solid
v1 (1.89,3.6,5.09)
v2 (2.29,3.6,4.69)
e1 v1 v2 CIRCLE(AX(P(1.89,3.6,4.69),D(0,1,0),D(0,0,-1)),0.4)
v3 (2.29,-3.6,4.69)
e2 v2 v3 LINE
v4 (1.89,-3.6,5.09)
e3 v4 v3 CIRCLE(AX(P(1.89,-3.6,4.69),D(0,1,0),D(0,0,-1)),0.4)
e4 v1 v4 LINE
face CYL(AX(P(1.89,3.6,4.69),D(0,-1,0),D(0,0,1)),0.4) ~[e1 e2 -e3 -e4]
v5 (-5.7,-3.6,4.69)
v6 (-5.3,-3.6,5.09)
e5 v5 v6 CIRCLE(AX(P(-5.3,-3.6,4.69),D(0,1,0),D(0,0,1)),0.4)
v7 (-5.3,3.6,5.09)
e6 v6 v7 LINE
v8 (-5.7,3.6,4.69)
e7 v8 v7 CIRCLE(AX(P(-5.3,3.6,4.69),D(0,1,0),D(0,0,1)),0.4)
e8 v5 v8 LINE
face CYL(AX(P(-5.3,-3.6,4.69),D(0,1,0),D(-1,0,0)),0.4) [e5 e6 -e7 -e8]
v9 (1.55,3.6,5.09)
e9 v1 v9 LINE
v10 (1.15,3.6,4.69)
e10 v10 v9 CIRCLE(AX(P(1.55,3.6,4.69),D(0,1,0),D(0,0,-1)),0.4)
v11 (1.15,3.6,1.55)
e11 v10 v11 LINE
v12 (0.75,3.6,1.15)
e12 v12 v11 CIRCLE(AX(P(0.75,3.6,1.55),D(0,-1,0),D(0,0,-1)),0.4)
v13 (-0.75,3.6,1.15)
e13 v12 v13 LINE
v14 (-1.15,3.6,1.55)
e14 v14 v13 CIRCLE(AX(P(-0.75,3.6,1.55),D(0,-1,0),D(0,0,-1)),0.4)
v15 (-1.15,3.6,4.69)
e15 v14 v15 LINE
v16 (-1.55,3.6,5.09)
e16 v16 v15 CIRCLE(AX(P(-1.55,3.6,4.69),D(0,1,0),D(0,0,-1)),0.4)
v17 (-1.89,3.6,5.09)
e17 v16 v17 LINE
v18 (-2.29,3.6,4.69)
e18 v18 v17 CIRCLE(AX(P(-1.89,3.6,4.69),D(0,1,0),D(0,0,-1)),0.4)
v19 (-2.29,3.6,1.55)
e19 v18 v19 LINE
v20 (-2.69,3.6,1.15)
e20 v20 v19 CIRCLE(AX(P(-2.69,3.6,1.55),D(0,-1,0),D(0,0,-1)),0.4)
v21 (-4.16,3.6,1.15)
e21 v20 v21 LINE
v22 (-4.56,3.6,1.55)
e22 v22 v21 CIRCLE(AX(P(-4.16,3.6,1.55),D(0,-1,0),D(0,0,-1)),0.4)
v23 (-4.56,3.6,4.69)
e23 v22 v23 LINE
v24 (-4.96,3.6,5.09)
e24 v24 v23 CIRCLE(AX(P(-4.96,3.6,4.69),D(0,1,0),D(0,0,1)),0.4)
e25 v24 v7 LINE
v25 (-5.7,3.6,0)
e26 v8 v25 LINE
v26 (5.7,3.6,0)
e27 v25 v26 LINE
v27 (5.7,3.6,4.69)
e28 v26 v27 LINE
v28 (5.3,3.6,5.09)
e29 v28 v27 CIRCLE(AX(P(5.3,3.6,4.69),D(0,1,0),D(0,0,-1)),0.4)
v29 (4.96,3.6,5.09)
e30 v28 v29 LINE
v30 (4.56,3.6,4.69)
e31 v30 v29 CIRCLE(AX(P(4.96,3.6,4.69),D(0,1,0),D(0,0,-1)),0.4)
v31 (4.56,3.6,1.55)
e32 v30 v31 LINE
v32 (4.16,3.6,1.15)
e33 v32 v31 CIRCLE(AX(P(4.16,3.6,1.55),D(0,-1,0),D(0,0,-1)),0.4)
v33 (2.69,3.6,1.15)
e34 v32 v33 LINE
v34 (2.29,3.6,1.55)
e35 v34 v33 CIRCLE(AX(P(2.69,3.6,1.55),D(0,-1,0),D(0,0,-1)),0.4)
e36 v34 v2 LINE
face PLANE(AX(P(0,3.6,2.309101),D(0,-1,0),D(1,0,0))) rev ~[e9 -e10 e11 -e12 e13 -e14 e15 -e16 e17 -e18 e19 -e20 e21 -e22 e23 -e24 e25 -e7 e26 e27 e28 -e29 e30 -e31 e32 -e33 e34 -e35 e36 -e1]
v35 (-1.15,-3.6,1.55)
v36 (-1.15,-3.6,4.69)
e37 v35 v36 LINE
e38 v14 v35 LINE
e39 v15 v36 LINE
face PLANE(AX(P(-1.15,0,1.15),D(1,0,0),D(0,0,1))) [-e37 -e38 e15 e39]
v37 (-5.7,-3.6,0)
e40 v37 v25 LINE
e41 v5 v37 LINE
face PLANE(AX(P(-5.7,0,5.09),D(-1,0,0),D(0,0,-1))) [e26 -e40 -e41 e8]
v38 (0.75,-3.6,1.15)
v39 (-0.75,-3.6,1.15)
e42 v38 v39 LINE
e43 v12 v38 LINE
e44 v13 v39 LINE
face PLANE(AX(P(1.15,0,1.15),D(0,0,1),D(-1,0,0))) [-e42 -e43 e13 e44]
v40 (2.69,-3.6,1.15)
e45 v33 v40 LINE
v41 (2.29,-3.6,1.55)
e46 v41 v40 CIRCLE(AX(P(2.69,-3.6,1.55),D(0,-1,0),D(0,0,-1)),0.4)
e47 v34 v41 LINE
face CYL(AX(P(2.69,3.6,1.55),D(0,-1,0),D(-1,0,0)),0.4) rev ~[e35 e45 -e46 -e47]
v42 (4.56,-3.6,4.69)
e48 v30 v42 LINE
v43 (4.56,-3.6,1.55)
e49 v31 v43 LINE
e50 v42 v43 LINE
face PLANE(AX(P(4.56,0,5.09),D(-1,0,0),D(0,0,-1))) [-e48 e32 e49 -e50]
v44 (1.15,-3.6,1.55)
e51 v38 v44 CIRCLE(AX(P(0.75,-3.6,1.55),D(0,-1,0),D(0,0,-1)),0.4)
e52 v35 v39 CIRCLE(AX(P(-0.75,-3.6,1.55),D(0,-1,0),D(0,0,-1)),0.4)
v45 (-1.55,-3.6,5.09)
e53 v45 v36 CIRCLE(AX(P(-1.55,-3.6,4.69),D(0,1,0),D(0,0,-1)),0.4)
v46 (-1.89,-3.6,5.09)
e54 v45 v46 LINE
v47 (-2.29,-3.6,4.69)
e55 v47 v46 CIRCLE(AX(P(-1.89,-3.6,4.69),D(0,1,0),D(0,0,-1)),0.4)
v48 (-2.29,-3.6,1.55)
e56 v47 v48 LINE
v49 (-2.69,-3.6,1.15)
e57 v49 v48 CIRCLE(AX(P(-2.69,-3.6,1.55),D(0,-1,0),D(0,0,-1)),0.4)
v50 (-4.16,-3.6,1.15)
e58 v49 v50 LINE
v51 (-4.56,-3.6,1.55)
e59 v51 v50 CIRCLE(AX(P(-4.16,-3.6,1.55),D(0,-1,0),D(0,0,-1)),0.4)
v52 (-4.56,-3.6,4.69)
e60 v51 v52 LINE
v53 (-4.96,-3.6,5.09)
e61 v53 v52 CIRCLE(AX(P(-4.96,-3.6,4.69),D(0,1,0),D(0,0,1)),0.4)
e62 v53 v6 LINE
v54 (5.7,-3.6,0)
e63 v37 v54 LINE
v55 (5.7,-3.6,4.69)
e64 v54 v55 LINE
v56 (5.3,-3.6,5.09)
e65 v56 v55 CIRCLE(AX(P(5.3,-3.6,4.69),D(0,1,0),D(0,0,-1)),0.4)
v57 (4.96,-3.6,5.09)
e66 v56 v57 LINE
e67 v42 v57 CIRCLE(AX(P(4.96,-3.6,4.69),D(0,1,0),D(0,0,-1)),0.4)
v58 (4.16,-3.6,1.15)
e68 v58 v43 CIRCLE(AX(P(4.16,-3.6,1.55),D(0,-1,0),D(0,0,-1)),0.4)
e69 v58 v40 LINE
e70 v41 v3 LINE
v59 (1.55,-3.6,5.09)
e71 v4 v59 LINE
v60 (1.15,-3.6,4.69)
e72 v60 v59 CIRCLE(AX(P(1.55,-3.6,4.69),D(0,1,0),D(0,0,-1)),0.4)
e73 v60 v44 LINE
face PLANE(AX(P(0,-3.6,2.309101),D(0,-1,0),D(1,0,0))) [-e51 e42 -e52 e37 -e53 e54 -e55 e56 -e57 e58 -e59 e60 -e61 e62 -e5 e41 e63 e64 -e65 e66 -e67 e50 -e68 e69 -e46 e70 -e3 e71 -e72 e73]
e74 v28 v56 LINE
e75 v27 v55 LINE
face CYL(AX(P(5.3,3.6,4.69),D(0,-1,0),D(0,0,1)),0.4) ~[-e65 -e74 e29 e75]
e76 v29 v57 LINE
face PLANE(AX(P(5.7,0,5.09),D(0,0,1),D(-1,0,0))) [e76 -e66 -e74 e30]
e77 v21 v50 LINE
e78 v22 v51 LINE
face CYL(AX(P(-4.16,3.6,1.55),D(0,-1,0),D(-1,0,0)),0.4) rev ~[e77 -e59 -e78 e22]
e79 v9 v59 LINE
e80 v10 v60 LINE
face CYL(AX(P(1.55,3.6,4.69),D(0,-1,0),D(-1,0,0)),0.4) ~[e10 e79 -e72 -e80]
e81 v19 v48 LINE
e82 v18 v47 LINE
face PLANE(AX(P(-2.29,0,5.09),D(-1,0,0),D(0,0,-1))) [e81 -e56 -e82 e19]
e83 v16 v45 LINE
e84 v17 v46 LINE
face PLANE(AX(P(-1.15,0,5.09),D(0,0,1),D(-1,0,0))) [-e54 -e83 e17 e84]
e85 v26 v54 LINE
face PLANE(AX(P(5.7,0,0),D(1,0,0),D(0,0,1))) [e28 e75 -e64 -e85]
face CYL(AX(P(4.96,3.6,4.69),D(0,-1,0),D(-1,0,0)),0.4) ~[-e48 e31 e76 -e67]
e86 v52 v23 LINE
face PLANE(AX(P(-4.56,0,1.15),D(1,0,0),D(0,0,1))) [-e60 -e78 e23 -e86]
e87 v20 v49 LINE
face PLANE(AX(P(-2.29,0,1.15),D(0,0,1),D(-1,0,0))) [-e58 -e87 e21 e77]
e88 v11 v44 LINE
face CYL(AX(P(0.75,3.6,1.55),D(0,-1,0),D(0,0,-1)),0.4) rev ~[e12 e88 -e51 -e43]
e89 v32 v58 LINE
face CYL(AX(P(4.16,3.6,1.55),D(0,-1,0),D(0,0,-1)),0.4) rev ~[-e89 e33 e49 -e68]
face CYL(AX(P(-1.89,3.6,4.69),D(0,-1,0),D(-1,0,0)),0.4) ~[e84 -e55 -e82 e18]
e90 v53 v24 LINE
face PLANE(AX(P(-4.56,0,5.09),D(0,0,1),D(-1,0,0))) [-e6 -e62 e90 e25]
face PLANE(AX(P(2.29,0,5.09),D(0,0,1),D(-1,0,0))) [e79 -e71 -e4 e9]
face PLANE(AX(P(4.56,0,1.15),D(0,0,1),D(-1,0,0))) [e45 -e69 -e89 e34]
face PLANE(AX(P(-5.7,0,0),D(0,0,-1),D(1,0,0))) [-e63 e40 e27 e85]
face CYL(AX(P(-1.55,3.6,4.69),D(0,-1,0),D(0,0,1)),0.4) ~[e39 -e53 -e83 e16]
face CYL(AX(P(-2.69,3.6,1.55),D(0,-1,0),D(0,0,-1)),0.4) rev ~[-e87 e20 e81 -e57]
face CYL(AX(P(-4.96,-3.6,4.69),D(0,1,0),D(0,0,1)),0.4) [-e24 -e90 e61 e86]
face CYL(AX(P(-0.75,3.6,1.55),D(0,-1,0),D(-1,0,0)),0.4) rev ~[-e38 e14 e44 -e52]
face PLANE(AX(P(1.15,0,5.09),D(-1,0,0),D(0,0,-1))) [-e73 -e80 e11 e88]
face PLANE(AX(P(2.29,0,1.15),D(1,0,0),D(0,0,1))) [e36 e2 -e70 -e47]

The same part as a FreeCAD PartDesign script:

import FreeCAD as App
import Part
import Sketcher

V = App.Vector


def edges_at(feature, points):
    """Names of the edges that pass closest to the given points."""
    edges = feature.Shape.Edges
    near = lambda p: min(range(len(edges)), key=lambda i: edges[i].distToShape(Part.Vertex(*p))[0])
    return sorted({f"Edge{near(p) + 1}" for p in points})

doc = App.newDocument("Part")
params = doc.addObject("Spreadsheet::Sheet", "Params")
for row, (alias, value) in enumerate([
    ("sketch1_width", "11.4 mm"),
    ("sketch1_width2", "2.3 mm"),
    ("sketch1_width3", "1.14 mm"),
    ("sketch1_height", "5.09 mm"),
    ("sketch1_height2", "3.94 mm"),
    ("pad1_length", "7.2 mm"),
    ("fillet_radius", "0.4 mm"),
], start=1):
    params.set(f"A{row}", alias)
    params.set(f"B{row}", "=" + value)
    params.setAlias(f"B{row}", alias)

body = doc.addObject("PartDesign::Body", "Body")

sketch1 = body.newObject("Sketcher::SketchObject", "Sketch")
sketch1.AttachmentSupport = (doc.getObject("XZ_Plane"), [""])
sketch1.MapMode = "FlatFace"
sketch1.addGeometry(Part.LineSegment(V(-5.7, 0, 0), V(5.7, 0, 0)), False)
sketch1.addGeometry(Part.LineSegment(V(5.7, 0, 0), V(5.7, 5.1, 0)), False)
sketch1.addGeometry(Part.LineSegment(V(5.7, 5.1, 0), V(4.6, 5.1, 0)), False)
sketch1.addGeometry(Part.LineSegment(V(4.6, 5.1, 0), V(4.6, 1.1, 0)), False)
sketch1.addGeometry(Part.LineSegment(V(4.6, 1.1, 0), V(2.3, 1.1, 0)), False)
sketch1.addGeometry(Part.LineSegment(V(2.3, 1.1, 0), V(2.3, 5.1, 0)), False)
sketch1.addGeometry(Part.LineSegment(V(2.3, 5.1, 0), V(1.1, 5.1, 0)), False)
sketch1.addGeometry(Part.LineSegment(V(1.1, 5.1, 0), V(1.1, 1.1, 0)), False)
sketch1.addGeometry(Part.LineSegment(V(1.1, 1.1, 0), V(-1.1, 1.1, 0)), False)
sketch1.addGeometry(Part.LineSegment(V(-1.1, 1.1, 0), V(-1.1, 5.1, 0)), False)
sketch1.addGeometry(Part.LineSegment(V(-1.1, 5.1, 0), V(-2.3, 5.1, 0)), False)
sketch1.addGeometry(Part.LineSegment(V(-2.3, 5.1, 0), V(-2.3, 1.1, 0)), False)
sketch1.addGeometry(Part.LineSegment(V(-2.3, 1.1, 0), V(-4.6, 1.1, 0)), False)
sketch1.addGeometry(Part.LineSegment(V(-4.6, 1.1, 0), V(-4.6, 5.1, 0)), False)
sketch1.addGeometry(Part.LineSegment(V(-4.6, 5.1, 0), V(-5.7, 5.1, 0)), False)
sketch1.addGeometry(Part.LineSegment(V(-5.7, 5.1, 0), V(-5.7, 0, 0)), False)
sketch1.addConstraint(Sketcher.Constraint("Coincident", 0, 2, 1, 1))
sketch1.addConstraint(Sketcher.Constraint("Coincident", 1, 2, 2, 1))
sketch1.addConstraint(Sketcher.Constraint("Coincident", 2, 2, 3, 1))
sketch1.addConstraint(Sketcher.Constraint("Coincident", 3, 2, 4, 1))
sketch1.addConstraint(Sketcher.Constraint("Coincident", 4, 2, 5, 1))
sketch1.addConstraint(Sketcher.Constraint("Coincident", 5, 2, 6, 1))
sketch1.addConstraint(Sketcher.Constraint("Coincident", 6, 2, 7, 1))
sketch1.addConstraint(Sketcher.Constraint("Coincident", 7, 2, 8, 1))
sketch1.addConstraint(Sketcher.Constraint("Coincident", 8, 2, 9, 1))
sketch1.addConstraint(Sketcher.Constraint("Coincident", 9, 2, 10, 1))
sketch1.addConstraint(Sketcher.Constraint("Coincident", 10, 2, 11, 1))
sketch1.addConstraint(Sketcher.Constraint("Coincident", 11, 2, 12, 1))
sketch1.addConstraint(Sketcher.Constraint("Coincident", 12, 2, 13, 1))
sketch1.addConstraint(Sketcher.Constraint("Coincident", 13, 2, 14, 1))
sketch1.addConstraint(Sketcher.Constraint("Coincident", 14, 2, 15, 1))
sketch1.addConstraint(Sketcher.Constraint("Coincident", 15, 2, 0, 1))
sketch1.addConstraint(Sketcher.Constraint("Horizontal", 0))
sketch1.addConstraint(Sketcher.Constraint("Vertical", 1))
sketch1.addConstraint(Sketcher.Constraint("Horizontal", 2))
sketch1.addConstraint(Sketcher.Constraint("Vertical", 3))
sketch1.addConstraint(Sketcher.Constraint("Horizontal", 4))
sketch1.addConstraint(Sketcher.Constraint("Vertical", 5))
sketch1.addConstraint(Sketcher.Constraint("Horizontal", 6))
sketch1.addConstraint(Sketcher.Constraint("Vertical", 7))
sketch1.addConstraint(Sketcher.Constraint("Horizontal", 8))
sketch1.addConstraint(Sketcher.Constraint("Vertical", 9))
sketch1.addConstraint(Sketcher.Constraint("Horizontal", 10))
sketch1.addConstraint(Sketcher.Constraint("Vertical", 11))
sketch1.addConstraint(Sketcher.Constraint("Horizontal", 12))
sketch1.addConstraint(Sketcher.Constraint("Vertical", 13))
sketch1.addConstraint(Sketcher.Constraint("Horizontal", 14))
sketch1.addConstraint(Sketcher.Constraint("Vertical", 15))
sketch1.addConstraint(Sketcher.Constraint("Symmetric", 0, 2, 15, 2, -1, 1))
sketch1.addConstraint(Sketcher.Constraint("Symmetric", 6, 2, 9, 2, -2))
sketch1.addConstraint(Sketcher.Constraint("Symmetric", 4, 2, 11, 2, -2))
sketch1.addConstraint(Sketcher.Constraint("Symmetric", 2, 2, 13, 2, -2))
sketch1.addConstraint(Sketcher.Constraint("Horizontal", 2, 2, 5, 2))
sketch1.addConstraint(Sketcher.Constraint("Horizontal", 4, 2, 7, 2))
sketch1.addConstraint(Sketcher.Constraint("Equal", 2, 6))
sketch1.addConstraint(Sketcher.Constraint("DistanceX", 0, 1, 0, 2, 11.4))
sketch1.addConstraint(Sketcher.Constraint("DistanceX", 8, 2, 8, 1, 2.3))
sketch1.addConstraint(Sketcher.Constraint("DistanceX", 2, 2, 2, 1, 1.14))
sketch1.addConstraint(Sketcher.Constraint("DistanceY", 1, 1, 1, 2, 5.09))
sketch1.addConstraint(Sketcher.Constraint("DistanceY", 3, 2, 3, 1, 3.94))
sketch1.setExpression("Constraints[39]", "Params.sketch1_width")
sketch1.setExpression("Constraints[40]", "Params.sketch1_width2")
sketch1.setExpression("Constraints[41]", "Params.sketch1_width3")
sketch1.setExpression("Constraints[42]", "Params.sketch1_height")
sketch1.setExpression("Constraints[43]", "Params.sketch1_height2")
pad1 = body.newObject("PartDesign::Pad", "Pad")
pad1.Profile = sketch1
pad1.setExpression("Length", "Params.pad1_length")
pad1.Midplane = True
doc.recompute()

fillet = body.newObject("PartDesign::Fillet", "Fillet")
fillet.Base = (pad1, edges_at(pad1, [
    (-5.7, 0, 5.09),
    (-4.56, 0, 5.09),
    (-2.29, 0, 5.09),
    (-1.15, 0, 5.09),
    (1.15, 0, 5.09),
    (2.29, 0, 5.09),
    (4.56, 0, 5.09),
    (5.7, 0, 5.09),
    (-4.56, 0, 1.15),
    (-1.15, 0, 1.15),
    (2.29, 0, 1.15),
    (-2.29, 0, 1.15),
    (1.15, 0, 1.15),
    (4.56, 0, 1.15),
]))
fillet.setExpression("Radius", "Params.fillet_radius")

doc.recompute()
